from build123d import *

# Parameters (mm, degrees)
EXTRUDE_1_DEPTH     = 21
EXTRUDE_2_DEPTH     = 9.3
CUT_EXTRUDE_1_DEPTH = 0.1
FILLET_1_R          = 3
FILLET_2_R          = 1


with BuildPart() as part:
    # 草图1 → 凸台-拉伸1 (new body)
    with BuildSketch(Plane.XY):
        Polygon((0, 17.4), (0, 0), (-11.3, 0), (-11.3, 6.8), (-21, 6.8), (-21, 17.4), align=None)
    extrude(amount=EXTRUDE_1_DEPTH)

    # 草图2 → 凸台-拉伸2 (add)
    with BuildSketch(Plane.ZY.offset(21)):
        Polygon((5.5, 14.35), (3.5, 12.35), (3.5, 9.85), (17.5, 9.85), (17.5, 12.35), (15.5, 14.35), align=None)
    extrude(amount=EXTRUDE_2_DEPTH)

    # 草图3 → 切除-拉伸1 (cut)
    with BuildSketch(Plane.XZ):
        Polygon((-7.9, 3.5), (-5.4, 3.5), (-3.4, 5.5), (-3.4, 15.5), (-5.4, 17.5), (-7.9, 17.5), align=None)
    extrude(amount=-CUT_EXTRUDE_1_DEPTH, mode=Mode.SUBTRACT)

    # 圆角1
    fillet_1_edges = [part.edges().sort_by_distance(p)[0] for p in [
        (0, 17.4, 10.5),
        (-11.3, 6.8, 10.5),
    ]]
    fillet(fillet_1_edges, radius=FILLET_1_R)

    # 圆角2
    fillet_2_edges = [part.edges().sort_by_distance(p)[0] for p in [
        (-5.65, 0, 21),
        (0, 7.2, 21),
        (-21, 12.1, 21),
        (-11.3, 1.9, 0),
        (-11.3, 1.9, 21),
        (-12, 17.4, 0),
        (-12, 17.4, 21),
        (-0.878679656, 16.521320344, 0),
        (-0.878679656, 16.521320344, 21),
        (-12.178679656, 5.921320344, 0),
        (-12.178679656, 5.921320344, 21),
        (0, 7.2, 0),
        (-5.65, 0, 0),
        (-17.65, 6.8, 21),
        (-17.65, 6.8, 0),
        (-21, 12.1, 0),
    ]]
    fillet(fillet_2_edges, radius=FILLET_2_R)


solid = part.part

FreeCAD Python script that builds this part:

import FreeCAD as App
import Part
import Sketcher

V = App.Vector


def edges_at(feature, points):
    """Names of the edges that pass closest to the given points."""
    edges = feature.Shape.Edges
    near = lambda p: min(range(len(edges)), key=lambda i: edges[i].distToShape(Part.Vertex(*p))[0])
    return sorted({f"Edge{near(p) + 1}" for p in points})

doc = App.newDocument("Part")
params = doc.addObject("Spreadsheet::Sheet", "Params")
for row, (alias, value) in enumerate([
    ("sketch1_width", "21 mm"),
    ("sketch1_width2", "9.7 mm"),
    ("sketch1_height", "17.4 mm"),
    ("sketch1_height2", "10.6 mm"),
    ("pad1_length", "21 mm"),
    ("sketch2_height", "14 mm"),
    ("sketch2_height2", "10 mm"),
    ("sketch2_width", "2.5 mm"),
    ("pad2_length", "9.3 mm"),
    ("sketch3_height", "10 mm"),
    ("sketch3_height2", "14 mm"),
    ("sketch3_width", "2.5 mm"),
    ("pocket1_length", "0.1 mm"),
    ("fillet_radius", "3 mm"),
    ("fillet2_radius", "1 mm"),
], start=1):
    params.set(f"A{row}", alias)
    params.set(f"B{row}", "=" + value)
    params.setAlias(f"B{row}", alias)

body = doc.addObject("PartDesign::Body", "Body")

# Sketch on XY plane
sketch1 = body.newObject("Sketcher::SketchObject", "Sketch")
sketch1.AttachmentSupport = (doc.getObject("XY_Plane"), [""])
sketch1.MapMode = "FlatFace"
sketch1.addGeometry([
    Part.LineSegment(V(0, 0, 0), V(0, 17.4, 0)),  # 0
    Part.LineSegment(V(0, 17.4, 0), V(-21, 17.4, 0)),  # 1
    Part.LineSegment(V(-21, 17.4, 0), V(-21, 6.8, 0)),  # 2
    Part.LineSegment(V(-21, 6.8, 0), V(-11.3, 6.8, 0)),  # 3
    Part.LineSegment(V(-11.3, 6.8, 0), V(-11.3, 0, 0)),  # 4
    Part.LineSegment(V(-11.3, 0, 0), V(0, 0, 0)),  # 5
], False)
sketch1.addConstraint([
    Sketcher.Constraint("Coincident", 0, 2, 1, 1),
    Sketcher.Constraint("Coincident", 1, 2, 2, 1),
    Sketcher.Constraint("Coincident", 2, 2, 3, 1),
    Sketcher.Constraint("Coincident", 3, 2, 4, 1),
    Sketcher.Constraint("Coincident", 4, 2, 5, 1),
    Sketcher.Constraint("Coincident", 5, 2, 0, 1),
    Sketcher.Constraint("Vertical", 0),
    Sketcher.Constraint("Horizontal", 1),
    Sketcher.Constraint("Vertical", 2),
    Sketcher.Constraint("Horizontal", 3),
    Sketcher.Constraint("Vertical", 4),
    Sketcher.Constraint("Horizontal", 5),
    Sketcher.Constraint("Coincident", 5, 2, -1, 1),
    Sketcher.Constraint("DistanceX", 1, 2, 1, 1, 21.0),
    Sketcher.Constraint("DistanceX", 3, 1, 3, 2, 9.7),
    Sketcher.Constraint("DistanceY", 0, 1, 0, 2, 17.4),
    Sketcher.Constraint("DistanceY", 2, 2, 2, 1, 10.6),
])
sketch1.setExpression("Constraints[13]", "Params.sketch1_width")
sketch1.setExpression("Constraints[14]", "Params.sketch1_width2")
sketch1.setExpression("Constraints[15]", "Params.sketch1_height")
sketch1.setExpression("Constraints[16]", "Params.sketch1_height2")
pad1 = body.newObject("PartDesign::Pad", "Pad")
pad1.Profile = sketch1
pad1.setExpression("Length", "Params.pad1_length")

# Sketch on YZ plane
sketch2 = body.newObject("Sketcher::SketchObject", "Sketch001")
sketch2.AttachmentSupport = (doc.getObject("YZ_Plane"), [""])
sketch2.MapMode = "FlatFace"
sketch2.AttachmentOffset = App.Placement(V(0, 0, -21), App.Rotation())
sketch2.addGeometry([
    Part.LineSegment(V(14.35, 5.5, 0), V(12.35, 3.5, 0)),  # 0
    Part.LineSegment(V(12.35, 3.5, 0), V(9.85, 3.5, 0)),  # 1
    Part.LineSegment(V(9.85, 3.5, 0), V(9.85, 17.5, 0)),  # 2
    Part.LineSegment(V(9.85, 17.5, 0), V(12.35, 17.5, 0)),  # 3
    Part.LineSegment(V(12.35, 17.5, 0), V(14.35, 15.5, 0)),  # 4
    Part.LineSegment(V(14.35, 15.5, 0), V(14.35, 5.5, 0)),  # 5
], False)
sketch2.addConstraint([
    Sketcher.Constraint("Coincident", 0, 2, 1, 1),
    Sketcher.Constraint("Coincident", 1, 2, 2, 1),
    Sketcher.Constraint("Coincident", 2, 2, 3, 1),
    Sketcher.Constraint("Coincident", 3, 2, 4, 1),
    Sketcher.Constraint("Coincident", 4, 2, 5, 1),
    Sketcher.Constraint("Coincident", 5, 2, 0, 1),
    Sketcher.Constraint("Horizontal", 1),
    Sketcher.Constraint("Vertical", 2),
    Sketcher.Constraint("Horizontal", 3),
    Sketcher.Constraint("Vertical", 5),
    Sketcher.Constraint("Perpendicular", 0, 4),
    Sketcher.Constraint("Vertical", 0, 2, 3, 2),
    Sketcher.Constraint("Equal", 0, 4),
    Sketcher.Constraint("DistanceY", 2, 1, 2, 2, 14.0),
    Sketcher.Constraint("DistanceY", 5, 2, 5, 1, 10.0),
    Sketcher.Constraint("DistanceX", 1, 2, 1, 1, 2.5),
    Sketcher.Constraint("DistanceY", -1, 1, 0, 2, 3.5),
    Sketcher.Constraint("DistanceX", -1, 1, 0, 2, 12.35),
])
sketch2.setExpression("Constraints[13]", "Params.sketch2_height")
sketch2.setExpression("Constraints[14]", "Params.sketch2_height2")
sketch2.setExpression("Constraints[15]", "Params.sketch2_width")
pad2 = body.newObject("PartDesign::Pad", "Pad001")
pad2.Profile = sketch2
pad2.setExpression("Length", "Params.pad2_length")
pad2.Reversed = True

# Sketch on XZ plane
sketch3 = body.newObject("Sketcher::SketchObject", "Sketch002")
sketch3.AttachmentSupport = (doc.getObject("XZ_Plane"), [""])
sketch3.MapMode = "FlatFace"
sketch3.addGeometry([
    Part.LineSegment(V(-7.9, 3.5, 0), V(-5.4, 3.5, 0)),  # 0
    Part.LineSegment(V(-5.4, 3.5, 0), V(-3.4, 5.5, 0)),  # 1
    Part.LineSegment(V(-3.4, 5.5, 0), V(-3.4, 15.5, 0)),  # 2
    Part.LineSegment(V(-3.4, 15.5, 0), V(-5.4, 17.5, 0)),  # 3
    Part.LineSegment(V(-5.4, 17.5, 0), V(-7.9, 17.5, 0)),  # 4
    Part.LineSegment(V(-7.9, 17.5, 0), V(-7.9, 3.5, 0)),  # 5
], False)
sketch3.addConstraint([
    Sketcher.Constraint("Coincident", 0, 2, 1, 1),
    Sketcher.Constraint("Coincident", 1, 2, 2, 1),
    Sketcher.Constraint("Coincident", 2, 2, 3, 1),
    Sketcher.Constraint("Coincident", 3, 2, 4, 1),
    Sketcher.Constraint("Coincident", 4, 2, 5, 1),
    Sketcher.Constraint("Coincident", 5, 2, 0, 1),
    Sketcher.Constraint("Horizontal", 0),
    Sketcher.Constraint("Vertical", 2),
    Sketcher.Constraint("Horizontal", 4),
    Sketcher.Constraint("Vertical", 5),
    Sketcher.Constraint("Perpendicular", 1, 3),
    Sketcher.Constraint("Vertical", 0, 2, 3, 2),
    Sketcher.Constraint("Equal", 1, 3),
    Sketcher.Constraint("DistanceY", 2, 1, 2, 2, 10.0),
    Sketcher.Constraint("DistanceY", 5, 2, 5, 1, 14.0),
    Sketcher.Constraint("DistanceX", 0, 1, 0, 2, 2.5),
    Sketcher.Constraint("DistanceX", 0, 2, -1, 1, 5.4),
    Sketcher.Constraint("DistanceY", -1, 1, 0, 2, 3.5),
])
sketch3.setExpression("Constraints[13]", "Params.sketch3_height")
sketch3.setExpression("Constraints[14]", "Params.sketch3_height2")
sketch3.setExpression("Constraints[15]", "Params.sketch3_width")
pocket1 = body.newObject("PartDesign::Pocket", "Pocket")
pocket1.Profile = sketch3
pocket1.setExpression("Length", "Params.pocket1_length")
doc.recompute()

fillet = body.newObject("PartDesign::Fillet", "Fillet")
fillet.Base = (pocket1, edges_at(pocket1, [(0, 17.4, 10.5), (-11.3, 6.8, 10.5)]))
fillet.setExpression("Radius", "Params.fillet_radius")
doc.recompute()

fillet2 = body.newObject("PartDesign::Fillet", "Fillet001")
fillet2.Base = (fillet, edges_at(fillet, [
    (-5.65, 0, 21),
    (0, 7.2, 21),
    (-21, 12.1, 21),
    (-11.3, 1.9, 0),
    (-11.3, 1.9, 21),
    (-12, 17.4, 0),
    (-12, 17.4, 21),
    (-0.879, 16.521, 0),
    (-0.879, 16.521, 21),
    (-12.179, 5.921, 0),
    (-12.179, 5.921, 21),
    (0, 7.2, 0),
    (-5.65, 0, 0),
    (-17.65, 6.8, 21),
    (-17.65, 6.8, 0),
    (-21, 12.1, 0),
]))
fillet2.setExpression("Radius", "Params.fillet2_radius")

doc.recompute()
